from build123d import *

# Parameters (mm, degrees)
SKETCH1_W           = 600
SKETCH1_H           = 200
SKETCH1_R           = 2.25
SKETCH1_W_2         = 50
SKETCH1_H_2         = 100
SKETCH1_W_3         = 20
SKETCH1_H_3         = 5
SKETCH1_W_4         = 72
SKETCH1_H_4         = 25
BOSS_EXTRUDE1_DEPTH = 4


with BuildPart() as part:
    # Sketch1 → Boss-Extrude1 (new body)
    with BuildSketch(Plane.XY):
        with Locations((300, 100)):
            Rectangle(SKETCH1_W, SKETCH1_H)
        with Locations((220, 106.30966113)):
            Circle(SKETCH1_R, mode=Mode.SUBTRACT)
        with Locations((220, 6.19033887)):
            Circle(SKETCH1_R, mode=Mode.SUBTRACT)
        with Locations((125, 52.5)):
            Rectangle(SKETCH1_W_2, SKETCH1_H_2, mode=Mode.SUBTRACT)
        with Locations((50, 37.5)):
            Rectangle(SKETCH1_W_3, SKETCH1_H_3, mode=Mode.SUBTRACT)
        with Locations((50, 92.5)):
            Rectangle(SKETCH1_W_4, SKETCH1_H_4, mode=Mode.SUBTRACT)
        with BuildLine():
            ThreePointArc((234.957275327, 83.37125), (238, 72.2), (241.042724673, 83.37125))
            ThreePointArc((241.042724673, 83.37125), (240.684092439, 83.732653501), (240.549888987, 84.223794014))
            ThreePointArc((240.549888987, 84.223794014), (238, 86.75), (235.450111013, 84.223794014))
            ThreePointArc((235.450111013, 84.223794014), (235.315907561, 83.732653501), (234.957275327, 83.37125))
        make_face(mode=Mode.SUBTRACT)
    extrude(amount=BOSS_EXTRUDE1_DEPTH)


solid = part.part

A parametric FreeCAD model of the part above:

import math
import FreeCAD as App
import Part
import Sketcher
Q = App.Units.Quantity


def add_polygon(sketch, points):
    """Adds a closed chain of lines whose ends are joined by coincident constraints."""
    first, n = sketch.GeometryCount, len(points)
    for a, b in zip(points, points[1:] + points[:1]):
        sketch.addGeometry(Part.LineSegment(App.Vector(*a, 0), App.Vector(*b, 0)), False)
    for i in range(n):
        sketch.addConstraint(Sketcher.Constraint("Coincident", first + i, 2, first + (i + 1) % n, 1))

doc = App.newDocument("Part")
params = doc.addObject("Spreadsheet::Sheet", "Params")
for row, (alias, value) in enumerate([
    ("sketch1_radius", "6 mm"),
    ("sketch1_radius2", "1 mm"),
    ("sketch1_diameter", "4.5 mm"),
    ("sketch1_width", "600 mm"),
    ("sketch1_width2", "20 mm"),
    ("pad1_length", "4 mm"),
], start=1):
    params.set(f"A{row}", alias)
    params.set(f"B{row}", "=" + value)
    params.setAlias(f"B{row}", alias)

body = doc.addObject("PartDesign::Body", "Body")

sketch1 = body.newObject("Sketcher::SketchObject", "Sketch")
sketch1.AttachmentSupport = (doc.getObject("XY_Plane"), [""])
sketch1.MapMode = "FlatFace"
add_polygon(sketch1, [(0, 200), (0, 0), (600, 0), (600, 200)])
add_polygon(sketch1, [(60, 35), (40, 35), (40, 40), (60, 40)])
add_polygon(sketch1, [(150, 2.5), (100, 2.5), (100, 102.5), (150, 102.5)])
sketch1.addGeometry(Part.Circle(App.Vector(220, 6.190339, 0), App.Vector(0, 0, 1), 2.25), False)
add_polygon(sketch1, [(86, 80), (14, 80), (14, 105), (86, 105)])
sketch1.addGeometry(Part.ArcOfCircle(Part.Circle(App.Vector(238, 78.2, 0), App.Vector(0, 0, 1), 6), math.radians(120.472236), math.radians(419.527764)), False)
sketch1.addGeometry(Part.ArcOfCircle(Part.Circle(App.Vector(234.450155, 84.233125, 0), App.Vector(0, 0, 1), 1), math.radians(-59.527764), math.radians(-0.534634)), False)
sketch1.addGeometry(Part.ArcOfCircle(Part.Circle(App.Vector(238, 84.2, 0), App.Vector(0, 0, 1), 2.55), math.radians(0.534634), math.radians(179.465366)), False)
sketch1.addGeometry(Part.ArcOfCircle(Part.Circle(App.Vector(241.549845, 84.233125, 0), App.Vector(0, 0, 1), 1), math.radians(-179.465366), math.radians(-120.472236)), False)
sketch1.addGeometry(Part.Circle(App.Vector(220, 106.309661, 0), App.Vector(0, 0, 1), 2.25), False)
sketch1.addConstraint([
    Sketcher.Constraint("Tangent", 17, 1, 18, 1),
    Sketcher.Constraint("Tangent", 18, 2, 19, 2),
    Sketcher.Constraint("Tangent", 19, 1, 20, 1),
    Sketcher.Constraint("Tangent", 20, 2, 17, 2),
    Sketcher.Constraint("Vertical", 0),
    Sketcher.Constraint("Horizontal", 1),
    Sketcher.Constraint("Vertical", 2),
    Sketcher.Constraint("Horizontal", 3),
    Sketcher.Constraint("Horizontal", 4),
    Sketcher.Constraint("Vertical", 5),
    Sketcher.Constraint("Horizontal", 6),
    Sketcher.Constraint("Vertical", 7),
    Sketcher.Constraint("Horizontal", 8),
    Sketcher.Constraint("Vertical", 9),
    Sketcher.Constraint("Horizontal", 10),
    Sketcher.Constraint("Vertical", 11),
    Sketcher.Constraint("Horizontal", 13),
    Sketcher.Constraint("Vertical", 14),
    Sketcher.Constraint("Horizontal", 15),
    Sketcher.Constraint("Vertical", 16),
    Sketcher.Constraint("Coincident", 0, 2, -1, 1),
    Sketcher.Constraint("Equal", 18, 20),
    Sketcher.Constraint("Equal", 12, 21),
    Sketcher.Constraint("Horizontal", 18, 3, 20, 3),
    Sketcher.Constraint("Vertical", 12, 3, 21, 3),
    Sketcher.Constraint("Radius", 17, Q("6 mm")),
    Sketcher.Constraint("Radius", 18, Q("1 mm")),
    Sketcher.Constraint("Diameter", 12, Q("4.5 mm")),
    Sketcher.Constraint("DistanceX", 1, 1, 1, 2, Q("600 mm")),
    Sketcher.Constraint("DistanceX", 4, 2, 4, 1, Q("20 mm")),
    Sketcher.Constraint("DistanceX", 8, 2, 8, 1, Q("50 mm")),
    Sketcher.Constraint("DistanceX", 13, 2, 13, 1, Q("72 mm")),
    Sketcher.Constraint("DistanceY", 0, 2, 0, 1, Q("200 mm")),
    Sketcher.Constraint("DistanceY", 5, 1, 5, 2, Q("5 mm")),
    Sketcher.Constraint("DistanceY", 9, 1, 9, 2, Q("100 mm")),
    Sketcher.Constraint("DistanceY", 14, 1, 14, 2, Q("25 mm")),
    Sketcher.Constraint("Radius", 19, Q("2.55 mm")),
    Sketcher.Constraint("DistanceX", -1, 1, 12, 3, Q("220 mm")),
    Sketcher.Constraint("DistanceX", -1, 1, 17, 3, Q("238 mm")),
    Sketcher.Constraint("DistanceX", -1, 1, 4, 2, Q("40 mm")),
    Sketcher.Constraint("DistanceY", -1, 1, 4, 2, Q("35 mm")),
    Sketcher.Constraint("DistanceX", -1, 1, 8, 2, Q("100 mm")),
    Sketcher.Constraint("DistanceX", -1, 1, 13, 2, Q("14 mm")),
    Sketcher.Constraint("DistanceY", -1, 1, 13, 2, Q("80 mm")),
    Sketcher.Constraint("DistanceY", 17, 3, 19, 3, Q("6 mm")),
    Sketcher.Constraint("DistanceY", -1, 1, 17, 3, Q("78.2 mm")),
    Sketcher.Constraint("DistanceY", -1, 1, 8, 2, Q("2.5 mm")),
    Sketcher.Constraint("DistanceY", -1, 1, 12, 3, Q("6.190339 mm")),
    Sketcher.Constraint("DistanceY", -1, 1, 21, 3, Q("106.309661 mm")),
])
sketch1.setExpression("Constraints[41]", "Params.sketch1_radius")
sketch1.setExpression("Constraints[42]", "Params.sketch1_radius2")
sketch1.setExpression("Constraints[43]", "Params.sketch1_diameter")
sketch1.setExpression("Constraints[44]", "Params.sketch1_width")
sketch1.setExpression("Constraints[45]", "Params.sketch1_width2")
pad1 = body.newObject("PartDesign::Pad", "Pad")
pad1.Profile = sketch1
pad1.setExpression("Length", "Params.pad1_length")

doc.recompute()
